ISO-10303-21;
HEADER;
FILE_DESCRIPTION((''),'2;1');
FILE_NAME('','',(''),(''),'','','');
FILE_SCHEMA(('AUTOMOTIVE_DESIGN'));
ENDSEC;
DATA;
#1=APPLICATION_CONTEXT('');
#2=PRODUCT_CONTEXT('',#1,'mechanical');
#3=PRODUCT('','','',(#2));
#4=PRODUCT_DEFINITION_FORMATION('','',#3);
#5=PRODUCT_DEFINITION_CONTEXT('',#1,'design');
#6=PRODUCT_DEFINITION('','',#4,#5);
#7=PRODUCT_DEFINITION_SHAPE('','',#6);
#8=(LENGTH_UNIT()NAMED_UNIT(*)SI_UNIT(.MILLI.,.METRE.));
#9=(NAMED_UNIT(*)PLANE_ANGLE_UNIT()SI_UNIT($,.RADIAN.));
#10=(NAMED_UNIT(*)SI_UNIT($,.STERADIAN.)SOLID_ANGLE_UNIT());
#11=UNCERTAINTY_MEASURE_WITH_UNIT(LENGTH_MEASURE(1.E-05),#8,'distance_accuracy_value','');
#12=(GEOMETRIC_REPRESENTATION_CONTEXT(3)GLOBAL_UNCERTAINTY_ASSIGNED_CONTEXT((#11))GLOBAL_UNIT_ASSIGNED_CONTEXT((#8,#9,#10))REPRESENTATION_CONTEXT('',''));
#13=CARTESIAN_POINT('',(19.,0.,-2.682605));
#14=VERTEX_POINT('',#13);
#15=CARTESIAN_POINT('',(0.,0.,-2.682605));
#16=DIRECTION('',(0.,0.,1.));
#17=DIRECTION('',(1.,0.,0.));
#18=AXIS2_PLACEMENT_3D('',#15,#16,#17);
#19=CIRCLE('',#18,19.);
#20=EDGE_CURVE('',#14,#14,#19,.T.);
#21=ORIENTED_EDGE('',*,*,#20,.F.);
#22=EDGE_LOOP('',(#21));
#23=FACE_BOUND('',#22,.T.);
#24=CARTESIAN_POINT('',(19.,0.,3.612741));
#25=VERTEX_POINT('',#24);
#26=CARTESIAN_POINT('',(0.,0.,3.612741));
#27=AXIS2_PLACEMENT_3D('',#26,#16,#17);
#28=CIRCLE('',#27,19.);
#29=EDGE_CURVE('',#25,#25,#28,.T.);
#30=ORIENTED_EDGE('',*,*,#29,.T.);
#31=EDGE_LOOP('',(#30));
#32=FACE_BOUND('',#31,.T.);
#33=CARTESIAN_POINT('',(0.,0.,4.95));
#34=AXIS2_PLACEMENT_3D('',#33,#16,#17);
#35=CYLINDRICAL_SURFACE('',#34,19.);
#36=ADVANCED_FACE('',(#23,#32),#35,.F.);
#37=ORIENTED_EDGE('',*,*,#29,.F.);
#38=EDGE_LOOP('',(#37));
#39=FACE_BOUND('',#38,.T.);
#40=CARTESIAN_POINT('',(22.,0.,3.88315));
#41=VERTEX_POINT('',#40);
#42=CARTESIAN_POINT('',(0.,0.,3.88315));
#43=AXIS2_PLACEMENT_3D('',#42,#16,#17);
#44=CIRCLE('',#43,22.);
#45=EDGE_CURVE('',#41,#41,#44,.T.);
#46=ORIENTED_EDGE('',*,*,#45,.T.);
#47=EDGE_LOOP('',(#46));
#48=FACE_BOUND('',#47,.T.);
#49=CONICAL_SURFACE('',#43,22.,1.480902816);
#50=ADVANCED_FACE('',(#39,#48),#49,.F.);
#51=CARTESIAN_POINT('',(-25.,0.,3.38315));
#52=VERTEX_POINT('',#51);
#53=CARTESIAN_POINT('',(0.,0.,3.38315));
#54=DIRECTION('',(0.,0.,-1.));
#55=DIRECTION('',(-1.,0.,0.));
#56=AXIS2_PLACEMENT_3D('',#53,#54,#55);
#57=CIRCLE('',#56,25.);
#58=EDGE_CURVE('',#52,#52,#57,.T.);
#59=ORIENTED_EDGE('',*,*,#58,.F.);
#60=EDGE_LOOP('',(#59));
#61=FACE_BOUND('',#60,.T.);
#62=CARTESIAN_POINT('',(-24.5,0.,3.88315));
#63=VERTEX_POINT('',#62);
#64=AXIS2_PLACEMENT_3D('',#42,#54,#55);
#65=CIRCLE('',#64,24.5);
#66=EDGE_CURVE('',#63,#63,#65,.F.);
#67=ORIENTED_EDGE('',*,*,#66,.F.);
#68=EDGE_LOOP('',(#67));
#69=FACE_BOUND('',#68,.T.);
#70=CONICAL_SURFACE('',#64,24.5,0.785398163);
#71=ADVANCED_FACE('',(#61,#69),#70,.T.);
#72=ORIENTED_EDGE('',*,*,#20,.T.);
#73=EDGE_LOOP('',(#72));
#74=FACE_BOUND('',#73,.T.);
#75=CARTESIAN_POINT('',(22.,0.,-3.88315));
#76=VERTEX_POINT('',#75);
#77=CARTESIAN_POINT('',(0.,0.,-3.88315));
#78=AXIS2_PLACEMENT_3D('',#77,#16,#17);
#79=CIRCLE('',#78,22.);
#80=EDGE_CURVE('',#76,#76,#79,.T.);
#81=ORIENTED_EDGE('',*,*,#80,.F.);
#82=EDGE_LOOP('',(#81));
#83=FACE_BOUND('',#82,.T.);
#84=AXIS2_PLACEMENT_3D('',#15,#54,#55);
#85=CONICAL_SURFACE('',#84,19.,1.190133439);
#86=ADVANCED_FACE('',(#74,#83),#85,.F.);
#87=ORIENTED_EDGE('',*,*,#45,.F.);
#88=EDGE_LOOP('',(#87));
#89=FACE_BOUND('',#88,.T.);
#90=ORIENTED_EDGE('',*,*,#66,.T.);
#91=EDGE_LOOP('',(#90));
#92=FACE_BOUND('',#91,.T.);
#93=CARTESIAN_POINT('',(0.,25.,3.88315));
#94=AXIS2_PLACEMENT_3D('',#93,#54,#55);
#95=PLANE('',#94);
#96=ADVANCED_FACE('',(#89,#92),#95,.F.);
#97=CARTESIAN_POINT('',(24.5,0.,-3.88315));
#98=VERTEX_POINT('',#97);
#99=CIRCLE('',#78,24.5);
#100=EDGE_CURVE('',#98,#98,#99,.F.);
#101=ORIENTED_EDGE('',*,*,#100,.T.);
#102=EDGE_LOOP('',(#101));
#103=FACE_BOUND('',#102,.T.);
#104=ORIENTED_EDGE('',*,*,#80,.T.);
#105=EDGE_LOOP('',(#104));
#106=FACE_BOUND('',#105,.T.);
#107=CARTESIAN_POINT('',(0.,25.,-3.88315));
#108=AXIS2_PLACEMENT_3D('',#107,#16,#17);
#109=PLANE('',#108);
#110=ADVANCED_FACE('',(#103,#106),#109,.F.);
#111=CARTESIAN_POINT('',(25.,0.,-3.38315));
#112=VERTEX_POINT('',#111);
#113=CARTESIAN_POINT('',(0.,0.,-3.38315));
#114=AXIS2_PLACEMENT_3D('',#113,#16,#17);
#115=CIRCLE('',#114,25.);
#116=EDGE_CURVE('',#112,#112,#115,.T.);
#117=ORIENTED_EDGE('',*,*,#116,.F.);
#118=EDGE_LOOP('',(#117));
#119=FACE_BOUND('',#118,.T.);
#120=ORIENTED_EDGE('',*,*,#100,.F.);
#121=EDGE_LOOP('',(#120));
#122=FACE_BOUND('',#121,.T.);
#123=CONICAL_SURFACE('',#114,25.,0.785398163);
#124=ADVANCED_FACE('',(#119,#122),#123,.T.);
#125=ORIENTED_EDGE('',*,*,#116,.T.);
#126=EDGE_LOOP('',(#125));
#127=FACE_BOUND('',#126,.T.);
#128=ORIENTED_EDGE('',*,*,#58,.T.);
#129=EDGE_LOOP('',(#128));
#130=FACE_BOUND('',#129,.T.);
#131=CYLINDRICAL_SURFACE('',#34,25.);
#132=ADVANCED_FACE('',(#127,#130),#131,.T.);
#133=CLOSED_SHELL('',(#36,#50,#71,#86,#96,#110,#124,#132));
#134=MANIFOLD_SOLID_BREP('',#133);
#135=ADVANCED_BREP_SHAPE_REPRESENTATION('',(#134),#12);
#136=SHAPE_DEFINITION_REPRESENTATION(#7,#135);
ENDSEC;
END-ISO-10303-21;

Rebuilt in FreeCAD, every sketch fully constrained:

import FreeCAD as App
import Part
import Sketcher

V = App.Vector


def edges_at(feature, points):
    """Names of the edges that pass closest to the given points."""
    edges = feature.Shape.Edges
    near = lambda p: min(range(len(edges)), key=lambda i: edges[i].distToShape(Part.Vertex(*p))[0])
    return sorted({f"Edge{near(p) + 1}" for p in points})

doc = App.newDocument("Part")
body = doc.addObject("PartDesign::Body", "Body")

sketch1 = body.newObject("Sketcher::SketchObject", "Sketch")
sketch1.AttachmentSupport = (doc.getObject("YZ_Plane"), [""])
sketch1.MapMode = "FlatFace"
sketch1.addGeometry([
    Part.LineSegment(V(25, -3.9, 0), V(25, 3.9, 0)),
    Part.LineSegment(V(25, 3.9, 0), V(22, 3.9, 0)),
    Part.LineSegment(V(22, 3.9, 0), V(19, 3.6, 0)),
    Part.LineSegment(V(19, 3.6, 0), V(19, -2.7, 0)),
    Part.LineSegment(V(19, -2.7, 0), V(22, -3.9, 0)),
    Part.LineSegment(V(22, -3.9, 0), V(25, -3.9, 0)),
], False)
sketch1.addConstraint([
    Sketcher.Constraint("Coincident", 0, 2, 1, 1),
    Sketcher.Constraint("Coincident", 1, 2, 2, 1),
    Sketcher.Constraint("Coincident", 2, 2, 3, 1),
    Sketcher.Constraint("Coincident", 3, 2, 4, 1),
    Sketcher.Constraint("Coincident", 4, 2, 5, 1),
    Sketcher.Constraint("Coincident", 5, 2, 0, 1),
    Sketcher.Constraint("Vertical", 0),
    Sketcher.Constraint("Horizontal", 1),
    Sketcher.Constraint("Vertical", 3),
    Sketcher.Constraint("Horizontal", 5),
    Sketcher.Constraint("Symmetric", 1, 2, 4, 2, -1),
    Sketcher.Constraint("DistanceX", 1, 2, 1, 1, 3.0),
    Sketcher.Constraint("DistanceX", -1, 1, 0, 2, 25.0),
    Sketcher.Constraint("DistanceX", -1, 1, 2, 2, 19.0),
    Sketcher.Constraint("DistanceY", 0, 1, 0, 2, 7.7663),
    Sketcher.Constraint("Distance", 4, 3.231301),
    Sketcher.Constraint("DistanceY", 3, 2, 3, 1, 6.295346),
])
revolution = body.newObject("PartDesign::Revolution", "Revolution")
revolution.Profile = sketch1
revolution.ReferenceAxis = (sketch1, ["V_Axis"])
revolution.Angle = 360
doc.recompute()

chamfer = body.newObject("PartDesign::Chamfer", "Chamfer")
chamfer.Base = (revolution, edges_at(revolution, [(-25, 0, 3.883), (-25, 0, -3.883)]))
chamfer.Size = 0.5

doc.recompute()
